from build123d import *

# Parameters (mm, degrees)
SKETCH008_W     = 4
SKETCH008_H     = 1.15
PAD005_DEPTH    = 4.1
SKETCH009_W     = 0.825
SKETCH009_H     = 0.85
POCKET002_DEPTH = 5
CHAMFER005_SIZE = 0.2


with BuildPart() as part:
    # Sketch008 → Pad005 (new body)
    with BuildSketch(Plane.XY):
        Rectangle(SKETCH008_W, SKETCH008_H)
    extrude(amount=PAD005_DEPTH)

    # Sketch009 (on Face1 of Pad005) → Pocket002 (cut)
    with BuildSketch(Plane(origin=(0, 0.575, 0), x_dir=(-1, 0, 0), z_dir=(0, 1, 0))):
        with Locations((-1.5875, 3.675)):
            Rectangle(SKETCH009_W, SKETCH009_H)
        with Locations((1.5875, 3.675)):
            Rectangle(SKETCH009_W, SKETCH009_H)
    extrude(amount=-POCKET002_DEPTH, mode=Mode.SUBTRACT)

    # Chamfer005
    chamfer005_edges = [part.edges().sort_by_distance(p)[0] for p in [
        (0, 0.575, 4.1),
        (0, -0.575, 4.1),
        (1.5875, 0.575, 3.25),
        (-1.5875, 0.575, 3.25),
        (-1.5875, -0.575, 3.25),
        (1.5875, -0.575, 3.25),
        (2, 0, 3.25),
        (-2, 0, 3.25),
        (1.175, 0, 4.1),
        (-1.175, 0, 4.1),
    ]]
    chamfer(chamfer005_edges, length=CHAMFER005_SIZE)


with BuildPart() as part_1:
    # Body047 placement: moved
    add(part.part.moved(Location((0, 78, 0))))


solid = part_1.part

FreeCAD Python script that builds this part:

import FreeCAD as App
import Part
import Sketcher

V = App.Vector


def edges_at(feature, points):
    """Names of the edges that pass closest to the given points."""
    edges = feature.Shape.Edges
    near = lambda p: min(range(len(edges)), key=lambda i: edges[i].distToShape(Part.Vertex(*p))[0])
    return sorted({f"Edge{near(p) + 1}" for p in points})

doc = App.newDocument("Part")
body = doc.addObject("PartDesign::Body", "Body")

# Sketch on XY plane
sketch1 = body.newObject("Sketcher::SketchObject", "Sketch")
sketch1.AttachmentSupport = (doc.getObject("XY_Plane"), [""])
sketch1.MapMode = "FlatFace"
sketch1.addGeometry([
    Part.LineSegment(V(-2, 0.575, 0), V(-2, -0.575, 0)),
    Part.LineSegment(V(-2, -0.575, 0), V(2, -0.575, 0)),
    Part.LineSegment(V(2, -0.575, 0), V(2, 0.575, 0)),
    Part.LineSegment(V(2, 0.575, 0), V(-2, 0.575, 0)),
], False)
sketch1.addConstraint([
    Sketcher.Constraint("Coincident", 0, 2, 1, 1),
    Sketcher.Constraint("Coincident", 1, 2, 2, 1),
    Sketcher.Constraint("Coincident", 2, 2, 3, 1),
    Sketcher.Constraint("Coincident", 3, 2, 0, 1),
    Sketcher.Constraint("Vertical", 0),
    Sketcher.Constraint("Horizontal", 1),
    Sketcher.Constraint("Vertical", 2),
    Sketcher.Constraint("Horizontal", 3),
    Sketcher.Constraint("Symmetric", 0, 2, 2, 2, -1, 1),
    Sketcher.Constraint("DistanceX", 1, 1, 1, 2, 4.0),
    Sketcher.Constraint("DistanceY", 0, 2, 0, 1, 1.15),
])
pad1 = body.newObject("PartDesign::Pad", "Pad")
pad1.Profile = sketch1
pad1.Length = 4.1

# Sketch on XZ plane
sketch2 = body.newObject("Sketcher::SketchObject", "Sketch001")
sketch2.AttachmentSupport = (doc.getObject("XZ_Plane"), [""])
sketch2.MapMode = "FlatFace"
sketch2.AttachmentOffset = App.Placement(V(0, 0, -0.575), App.Rotation())
sketch2.addGeometry([
    Part.LineSegment(V(2, 4.1, 0), V(2, 3.25, 0)),  # 0
    Part.LineSegment(V(2, 3.25, 0), V(1.175, 3.25, 0)),  # 1
    Part.LineSegment(V(1.175, 3.25, 0), V(1.175, 4.1, 0)),  # 2
    Part.LineSegment(V(1.175, 4.1, 0), V(2, 4.1, 0)),  # 3
    Part.LineSegment(V(-1.175, 4.1, 0), V(-1.175, 3.25, 0)),  # 4
    Part.LineSegment(V(-1.175, 3.25, 0), V(-2, 3.25, 0)),  # 5
    Part.LineSegment(V(-2, 3.25, 0), V(-2, 4.1, 0)),  # 6
    Part.LineSegment(V(-2, 4.1, 0), V(-1.175, 4.1, 0)),  # 7
], False)
sketch2.addConstraint([
    Sketcher.Constraint("Coincident", 0, 2, 1, 1),
    Sketcher.Constraint("Coincident", 1, 2, 2, 1),
    Sketcher.Constraint("Coincident", 2, 2, 3, 1),
    Sketcher.Constraint("Coincident", 3, 2, 0, 1),
    Sketcher.Constraint("Coincident", 4, 2, 5, 1),
    Sketcher.Constraint("Coincident", 5, 2, 6, 1),
    Sketcher.Constraint("Coincident", 6, 2, 7, 1),
    Sketcher.Constraint("Coincident", 7, 2, 4, 1),
    Sketcher.Constraint("Vertical", 0),
    Sketcher.Constraint("Horizontal", 1),
    Sketcher.Constraint("Vertical", 2),
    Sketcher.Constraint("Horizontal", 3),
    Sketcher.Constraint("Vertical", 4),
    Sketcher.Constraint("Horizontal", 5),
    Sketcher.Constraint("Vertical", 6),
    Sketcher.Constraint("Horizontal", 7),
    Sketcher.Constraint("Symmetric", 1, 2, 4, 2, -2),
    Sketcher.Constraint("Symmetric", 3, 2, 6, 2, -2),
    Sketcher.Constraint("DistanceX", -1, 1, 0, 2, 2.0),
    Sketcher.Constraint("DistanceY", 0, 2, 0, 1, 0.85),
    Sketcher.Constraint("DistanceY", -1, 1, 2, 2, 4.1),
    Sketcher.Constraint("DistanceX", 1, 2, 1, 1, 0.825),
])
pocket1 = body.newObject("PartDesign::Pocket", "Pocket")
pocket1.Profile = sketch2
pocket1.Length = 5
pocket1.Reversed = True
doc.recompute()

chamfer = body.newObject("PartDesign::Chamfer", "Chamfer")
chamfer.Base = (pocket1, edges_at(pocket1, [
    (0, 0.575, 4.1),
    (0, -0.575, 4.1),
    (1.587, 0.575, 3.25),
    (-1.587, 0.575, 3.25),
    (-1.587, -0.575, 3.25),
    (1.587, -0.575, 3.25),
    (2, 0, 3.25),
    (-2, 0, 3.25),
    (1.175, 0, 4.1),
    (-1.175, 0, 4.1),
]))
chamfer.Size = 0.2
body2 = doc.addObject("PartDesign::Body", "Body001")
doc.recompute()

body.Placement = App.Placement(V(0, 78, 0), App.Rotation(V(0, 0, 1), 0))
boolean = body2.newObject("PartDesign::Boolean", "Boolean")
boolean.Type = "Fuse"
boolean.addObjects([body])

doc.recompute()
